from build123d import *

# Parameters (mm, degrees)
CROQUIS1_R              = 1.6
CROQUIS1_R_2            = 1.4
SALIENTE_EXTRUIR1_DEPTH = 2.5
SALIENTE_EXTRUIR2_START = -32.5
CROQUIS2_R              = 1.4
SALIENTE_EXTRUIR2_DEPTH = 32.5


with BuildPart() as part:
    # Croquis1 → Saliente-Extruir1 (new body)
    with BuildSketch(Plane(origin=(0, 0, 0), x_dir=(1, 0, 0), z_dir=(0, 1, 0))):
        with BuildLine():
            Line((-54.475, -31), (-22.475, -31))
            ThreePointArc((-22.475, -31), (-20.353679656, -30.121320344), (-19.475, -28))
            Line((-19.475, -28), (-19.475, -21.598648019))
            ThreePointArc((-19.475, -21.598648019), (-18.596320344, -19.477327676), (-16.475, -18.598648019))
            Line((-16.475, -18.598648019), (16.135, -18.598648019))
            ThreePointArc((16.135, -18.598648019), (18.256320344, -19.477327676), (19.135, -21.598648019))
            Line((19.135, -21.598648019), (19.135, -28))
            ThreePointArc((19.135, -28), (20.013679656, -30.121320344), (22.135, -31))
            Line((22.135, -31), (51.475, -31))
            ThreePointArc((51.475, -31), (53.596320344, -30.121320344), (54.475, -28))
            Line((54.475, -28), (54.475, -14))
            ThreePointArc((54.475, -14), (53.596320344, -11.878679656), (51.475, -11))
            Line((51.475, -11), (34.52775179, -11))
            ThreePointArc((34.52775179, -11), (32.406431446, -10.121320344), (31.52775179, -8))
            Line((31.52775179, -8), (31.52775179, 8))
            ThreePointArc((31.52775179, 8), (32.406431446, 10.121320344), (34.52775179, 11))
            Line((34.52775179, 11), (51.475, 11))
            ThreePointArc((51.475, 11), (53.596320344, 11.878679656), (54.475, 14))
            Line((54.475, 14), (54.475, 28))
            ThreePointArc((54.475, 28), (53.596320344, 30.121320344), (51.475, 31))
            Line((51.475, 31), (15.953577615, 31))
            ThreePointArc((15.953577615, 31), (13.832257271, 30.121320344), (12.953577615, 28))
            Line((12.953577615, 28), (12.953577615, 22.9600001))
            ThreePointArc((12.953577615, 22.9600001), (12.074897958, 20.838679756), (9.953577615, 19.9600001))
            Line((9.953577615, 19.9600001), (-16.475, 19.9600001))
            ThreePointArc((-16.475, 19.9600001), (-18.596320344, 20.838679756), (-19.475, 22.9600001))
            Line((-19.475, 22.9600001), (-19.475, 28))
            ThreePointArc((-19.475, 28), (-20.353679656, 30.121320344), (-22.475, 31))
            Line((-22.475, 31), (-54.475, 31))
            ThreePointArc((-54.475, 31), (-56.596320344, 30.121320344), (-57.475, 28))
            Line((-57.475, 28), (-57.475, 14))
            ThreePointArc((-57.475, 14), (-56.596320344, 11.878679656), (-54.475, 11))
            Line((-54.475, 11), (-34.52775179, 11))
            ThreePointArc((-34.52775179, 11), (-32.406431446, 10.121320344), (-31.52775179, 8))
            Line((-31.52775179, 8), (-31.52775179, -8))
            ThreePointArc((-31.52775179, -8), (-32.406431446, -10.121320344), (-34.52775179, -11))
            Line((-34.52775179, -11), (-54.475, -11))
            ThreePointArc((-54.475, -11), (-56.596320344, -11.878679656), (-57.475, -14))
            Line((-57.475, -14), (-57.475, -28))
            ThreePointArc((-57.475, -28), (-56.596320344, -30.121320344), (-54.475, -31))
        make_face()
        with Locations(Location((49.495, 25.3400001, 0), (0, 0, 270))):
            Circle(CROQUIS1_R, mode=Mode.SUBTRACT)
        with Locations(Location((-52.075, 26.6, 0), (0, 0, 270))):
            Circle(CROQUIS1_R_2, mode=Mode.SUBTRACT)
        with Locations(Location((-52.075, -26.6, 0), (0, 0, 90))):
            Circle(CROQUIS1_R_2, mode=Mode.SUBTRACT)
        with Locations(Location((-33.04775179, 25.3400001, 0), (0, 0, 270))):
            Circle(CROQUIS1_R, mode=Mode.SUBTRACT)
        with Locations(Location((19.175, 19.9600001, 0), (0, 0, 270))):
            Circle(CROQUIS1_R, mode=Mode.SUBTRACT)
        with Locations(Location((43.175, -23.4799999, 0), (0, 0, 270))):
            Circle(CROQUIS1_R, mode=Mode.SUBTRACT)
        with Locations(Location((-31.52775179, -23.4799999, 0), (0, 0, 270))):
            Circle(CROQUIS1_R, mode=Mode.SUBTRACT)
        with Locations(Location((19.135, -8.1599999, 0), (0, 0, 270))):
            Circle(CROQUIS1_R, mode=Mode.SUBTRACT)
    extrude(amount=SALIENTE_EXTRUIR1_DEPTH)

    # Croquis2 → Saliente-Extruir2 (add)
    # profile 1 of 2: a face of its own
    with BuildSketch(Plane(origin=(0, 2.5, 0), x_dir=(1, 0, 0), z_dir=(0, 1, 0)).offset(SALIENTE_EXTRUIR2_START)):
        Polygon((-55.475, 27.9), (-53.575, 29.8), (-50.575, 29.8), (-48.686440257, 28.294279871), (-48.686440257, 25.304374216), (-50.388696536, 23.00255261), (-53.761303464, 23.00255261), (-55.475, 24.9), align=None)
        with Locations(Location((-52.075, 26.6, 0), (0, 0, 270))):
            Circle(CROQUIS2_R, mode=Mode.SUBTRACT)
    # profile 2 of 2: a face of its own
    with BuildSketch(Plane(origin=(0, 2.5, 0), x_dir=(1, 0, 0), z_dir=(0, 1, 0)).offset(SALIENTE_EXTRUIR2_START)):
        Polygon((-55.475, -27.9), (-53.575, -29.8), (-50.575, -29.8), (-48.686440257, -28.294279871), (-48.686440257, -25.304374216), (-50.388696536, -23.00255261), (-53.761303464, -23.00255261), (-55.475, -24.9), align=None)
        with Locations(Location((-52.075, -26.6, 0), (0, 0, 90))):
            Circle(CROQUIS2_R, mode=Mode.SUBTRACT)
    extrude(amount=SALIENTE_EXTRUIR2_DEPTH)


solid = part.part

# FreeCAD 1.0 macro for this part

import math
import FreeCAD as App
import Part
import Sketcher

V = App.Vector
Q = App.Units.Quantity

doc = App.newDocument("Part")
body = doc.addObject("PartDesign::Body", "Body")

# Sketch on XZ plane
sketch1 = body.newObject("Sketcher::SketchObject", "Sketch")
sketch1.AttachmentSupport = (doc.getObject("XZ_Plane"), [""])
sketch1.MapMode = "FlatFace"
sketch1.addGeometry([
    Part.LineSegment(V(-54.475, 31, 0), V(-22.475, 31, 0)),  # 0
    Part.ArcOfCircle(Part.Circle(V(-22.475, 28, 0), V(0, 0, 1), 3), math.radians(0), math.radians(90)),  # 1
    Part.LineSegment(V(-19.475, 28, 0), V(-19.475, 21.598648, 0)),  # 2
    Part.ArcOfCircle(Part.Circle(V(-16.475, 21.598648, 0), V(0, 0, 1), 3), math.radians(180), math.radians(270)),  # 3
    Part.LineSegment(V(-16.475, 18.598648, 0), V(16.135, 18.598648, 0)),  # 4
    Part.ArcOfCircle(Part.Circle(V(16.135, 21.598648, 0), V(0, 0, 1), 3), math.radians(-90), math.radians(0)),  # 5
    Part.LineSegment(V(19.135, 21.598648, 0), V(19.135, 28, 0)),  # 6
    Part.ArcOfCircle(Part.Circle(V(22.135, 28, 0), V(0, 0, 1), 3), math.radians(90), math.radians(180)),  # 7
    Part.LineSegment(V(22.135, 31, 0), V(51.475, 31, 0)),  # 8
    Part.ArcOfCircle(Part.Circle(V(51.475, 28, 0), V(0, 0, 1), 3), math.radians(0), math.radians(90)),  # 9
    Part.LineSegment(V(54.475, 28, 0), V(54.475, 14, 0)),  # 10
    Part.ArcOfCircle(Part.Circle(V(51.475, 14, 0), V(0, 0, 1), 3), math.radians(-90), math.radians(0)),  # 11
    Part.LineSegment(V(51.475, 11, 0), V(34.527752, 11, 0)),  # 12
    Part.ArcOfCircle(Part.Circle(V(34.527752, 8, 0), V(0, 0, 1), 3), math.radians(90), math.radians(180)),  # 13
    Part.LineSegment(V(31.527752, 8, 0), V(31.527752, -8, 0)),  # 14
    Part.ArcOfCircle(Part.Circle(V(34.527752, -8, 0), V(0, 0, 1), 3), math.radians(180), math.radians(270)),  # 15
    Part.LineSegment(V(34.527752, -11, 0), V(51.475, -11, 0)),  # 16
    Part.ArcOfCircle(Part.Circle(V(51.475, -14, 0), V(0, 0, 1), 3), math.radians(0), math.radians(90)),  # 17
    Part.LineSegment(V(54.475, -14, 0), V(54.475, -28, 0)),  # 18
    Part.ArcOfCircle(Part.Circle(V(51.475, -28, 0), V(0, 0, 1), 3), math.radians(-90), math.radians(0)),  # 19
    Part.LineSegment(V(51.475, -31, 0), V(15.953578, -31, 0)),  # 20
    Part.ArcOfCircle(Part.Circle(V(15.953578, -28, 0), V(0, 0, 1), 3), math.radians(180), math.radians(270)),  # 21
    Part.LineSegment(V(12.953578, -28, 0), V(12.953578, -22.96, 0)),  # 22
    Part.ArcOfCircle(Part.Circle(V(9.953578, -22.96, 0), V(0, 0, 1), 3), math.radians(0), math.radians(90)),  # 23
    Part.LineSegment(V(9.953578, -19.96, 0), V(-16.475, -19.96, 0)),  # 24
    Part.ArcOfCircle(Part.Circle(V(-16.475, -22.96, 0), V(0, 0, 1), 3), math.radians(90), math.radians(180)),  # 25
    Part.LineSegment(V(-19.475, -22.96, 0), V(-19.475, -28, 0)),  # 26
    Part.ArcOfCircle(Part.Circle(V(-22.475, -28, 0), V(0, 0, 1), 3), math.radians(-90), math.radians(0)),  # 27
    Part.LineSegment(V(-22.475, -31, 0), V(-54.475, -31, 0)),  # 28
    Part.ArcOfCircle(Part.Circle(V(-54.475, -28, 0), V(0, 0, 1), 3), math.radians(180), math.radians(270)),  # 29
    Part.LineSegment(V(-57.475, -28, 0), V(-57.475, -14, 0)),  # 30
    Part.ArcOfCircle(Part.Circle(V(-54.475, -14, 0), V(0, 0, 1), 3), math.radians(90), math.radians(180)),  # 31
    Part.LineSegment(V(-54.475, -11, 0), V(-34.527752, -11, 0)),  # 32
    Part.ArcOfCircle(Part.Circle(V(-34.527752, -8, 0), V(0, 0, 1), 3), math.radians(-90), math.radians(0)),  # 33
    Part.LineSegment(V(-31.527752, -8, 0), V(-31.527752, 8, 0)),  # 34
    Part.ArcOfCircle(Part.Circle(V(-34.527752, 8, 0), V(0, 0, 1), 3), math.radians(0), math.radians(90)),  # 35
    Part.LineSegment(V(-34.527752, 11, 0), V(-54.475, 11, 0)),  # 36
    Part.ArcOfCircle(Part.Circle(V(-54.475, 14, 0), V(0, 0, 1), 3), math.radians(180), math.radians(270)),  # 37
    Part.LineSegment(V(-57.475, 14, 0), V(-57.475, 28, 0)),  # 38
    Part.ArcOfCircle(Part.Circle(V(-54.475, 28, 0), V(0, 0, 1), 3), math.radians(90), math.radians(180)),  # 39
    Part.Circle(V(-52.075, 26.6, 0), V(0, 0, 1), 1.4),  # 40
    Part.Circle(V(-31.527752, 23.48, 0), V(0, 0, 1), 1.6),  # 41
    Part.Circle(V(43.175, 23.48, 0), V(0, 0, 1), 1.6),  # 42
    Part.Circle(V(19.135, 8.16, 0), V(0, 0, 1), 1.6),  # 43
    Part.Circle(V(-52.075, -26.6, 0), V(0, 0, 1), 1.4),  # 44
    Part.Circle(V(-33.047752, -25.34, 0), V(0, 0, 1), 1.6),  # 45
    Part.Circle(V(19.175, -19.96, 0), V(0, 0, 1), 1.6),  # 46
    Part.Circle(V(49.495, -25.34, 0), V(0, 0, 1), 1.6),  # 47
], False)
sketch1.addConstraint([
    Sketcher.Constraint("Tangent", 0, 2, 1, 2),
    Sketcher.Constraint("Tangent", 1, 1, 2, 1),
    Sketcher.Constraint("Tangent", 2, 2, 3, 1),
    Sketcher.Constraint("Tangent", 3, 2, 4, 1),
    Sketcher.Constraint("Tangent", 4, 2, 5, 1),
    Sketcher.Constraint("Tangent", 5, 2, 6, 1),
    Sketcher.Constraint("Tangent", 6, 2, 7, 2),
    Sketcher.Constraint("Tangent", 7, 1, 8, 1),
    Sketcher.Constraint("Tangent", 8, 2, 9, 2),
    Sketcher.Constraint("Tangent", 9, 1, 10, 1),
    Sketcher.Constraint("Tangent", 10, 2, 11, 2),
    Sketcher.Constraint("Tangent", 11, 1, 12, 1),
    Sketcher.Constraint("Tangent", 12, 2, 13, 1),
    Sketcher.Constraint("Tangent", 13, 2, 14, 1),
    Sketcher.Constraint("Tangent", 14, 2, 15, 1),
    Sketcher.Constraint("Tangent", 15, 2, 16, 1),
    Sketcher.Constraint("Tangent", 16, 2, 17, 2),
    Sketcher.Constraint("Tangent", 17, 1, 18, 1),
    Sketcher.Constraint("Tangent", 18, 2, 19, 2),
    Sketcher.Constraint("Tangent", 19, 1, 20, 1),
    Sketcher.Constraint("Tangent", 20, 2, 21, 2),
    Sketcher.Constraint("Tangent", 21, 1, 22, 1),
    Sketcher.Constraint("Tangent", 22, 2, 23, 1),
    Sketcher.Constraint("Tangent", 23, 2, 24, 1),
    Sketcher.Constraint("Tangent", 24, 2, 25, 1),
    Sketcher.Constraint("Tangent", 25, 2, 26, 1),
    Sketcher.Constraint("Tangent", 26, 2, 27, 2),
    Sketcher.Constraint("Tangent", 27, 1, 28, 1),
    Sketcher.Constraint("Tangent", 28, 2, 29, 2),
    Sketcher.Constraint("Tangent", 29, 1, 30, 1),
    Sketcher.Constraint("Tangent", 30, 2, 31, 2),
    Sketcher.Constraint("Tangent", 31, 1, 32, 1),
    Sketcher.Constraint("Tangent", 32, 2, 33, 1),
    Sketcher.Constraint("Tangent", 33, 2, 34, 1),
    Sketcher.Constraint("Tangent", 34, 2, 35, 1),
    Sketcher.Constraint("Tangent", 35, 2, 36, 1),
    Sketcher.Constraint("Tangent", 36, 2, 37, 2),
    Sketcher.Constraint("Tangent", 37, 1, 38, 1),
    Sketcher.Constraint("Tangent", 38, 2, 39, 2),
    Sketcher.Constraint("Tangent", 39, 1, 0, 1),
    Sketcher.Constraint("Horizontal", 0),
    Sketcher.Constraint("Vertical", 2),
    Sketcher.Constraint("Horizontal", 4),
    Sketcher.Constraint("Vertical", 6),
    Sketcher.Constraint("Horizontal", 8),
    Sketcher.Constraint("Vertical", 10),
    Sketcher.Constraint("Horizontal", 12),
    Sketcher.Constraint("Vertical", 14),
    Sketcher.Constraint("Horizontal", 16),
    Sketcher.Constraint("Vertical", 18),
    Sketcher.Constraint("Horizontal", 20),
    Sketcher.Constraint("Vertical", 22),
    Sketcher.Constraint("Horizontal", 24),
    Sketcher.Constraint("Vertical", 26),
    Sketcher.Constraint("Horizontal", 28),
    Sketcher.Constraint("Vertical", 30),
    Sketcher.Constraint("Horizontal", 32),
    Sketcher.Constraint("Vertical", 34),
    Sketcher.Constraint("Horizontal", 36),
    Sketcher.Constraint("Vertical", 38),
    Sketcher.Constraint("Equal", 1, 3),
    Sketcher.Constraint("Equal", 3, 5),
    Sketcher.Constraint("Equal", 5, 7),
    Sketcher.Constraint("Equal", 7, 9),
    Sketcher.Constraint("Equal", 9, 11),
    Sketcher.Constraint("Equal", 11, 13),
    Sketcher.Constraint("Equal", 13, 15),
    Sketcher.Constraint("Equal", 15, 17),
    Sketcher.Constraint("Equal", 17, 19),
    Sketcher.Constraint("Equal", 19, 21),
    Sketcher.Constraint("Equal", 21, 23),
    Sketcher.Constraint("Equal", 23, 25),
    Sketcher.Constraint("Equal", 25, 27),
    Sketcher.Constraint("Equal", 27, 29),
    Sketcher.Constraint("Equal", 29, 31),
    Sketcher.Constraint("Equal", 31, 33),
    Sketcher.Constraint("Equal", 33, 35),
    Sketcher.Constraint("Equal", 35, 37),
    Sketcher.Constraint("Equal", 37, 39),
    Sketcher.Constraint("Equal", 41, 42),
    Sketcher.Constraint("Equal", 42, 43),
    Sketcher.Constraint("Equal", 40, 44),
    Sketcher.Constraint("Equal", 43, 45),
    Sketcher.Constraint("Equal", 45, 46),
    Sketcher.Constraint("Equal", 46, 47),
    Sketcher.Constraint("Symmetric", 13, 3, 33, 3, -1, 1),
    Sketcher.Constraint("Symmetric", 11, 3, 17, 3, -1),
    Sketcher.Constraint("Symmetric", 1, 3, 27, 3, -1),
    Sketcher.Constraint("Symmetric", 31, 3, 37, 3, -1),
    Sketcher.Constraint("Symmetric", 40, 3, 44, 3, -1),
    Sketcher.Constraint("Horizontal", 1, 3, 7, 3),
    Sketcher.Constraint("Horizontal", 21, 3, 27, 3),
    Sketcher.Constraint("Horizontal", 41, 3, 42, 3),
    Sketcher.Constraint("Horizontal", 45, 3, 47, 3),
    Sketcher.Constraint("Horizontal", 46, 3, 23, 2),
    Sketcher.Constraint("Vertical", 43, 3, 5, 2),
    Sketcher.Constraint("Vertical", 41, 3, 33, 2),
    Sketcher.Constraint("Radius", 1, Q("3 mm")),
    Sketcher.Constraint("Diameter", 40, Q("2.8 mm")),
    Sketcher.Constraint("Diameter", 41, Q("3.2 mm")),
    Sketcher.Constraint("DistanceX", 0, 1, 0, 2, Q("32 mm")),
    Sketcher.Constraint("DistanceY", 10, 2, 10, 1, Q("14 mm")),
    Sketcher.Constraint("DistanceY", 14, 2, 14, 1, Q("16 mm")),
    Sketcher.Constraint("DistanceX", 4, 1, 4, 2, Q("32.61 mm")),
    Sketcher.Constraint("DistanceX", 8, 1, 8, 2, Q("29.34 mm")),
    Sketcher.Constraint("DistanceY", 22, 1, 22, 2, Q("5.04 mm")),
    Sketcher.Constraint("DistanceY", -1, 1, 40, 3, Q("26.6 mm")),
    Sketcher.Constraint("DistanceY", -1, 1, 41, 3, Q("23.48 mm")),
    Sketcher.Constraint("DistanceY", -1, 1, 43, 3, Q("8.16 mm")),
    Sketcher.Constraint("DistanceY", 45, 3, -1, 1, Q("25.34 mm")),
    Sketcher.Constraint("DistanceX", 1, 3, -1, 1, Q("22.475 mm")),
    Sketcher.Constraint("DistanceX", 40, 3, -1, 1, Q("52.075 mm")),
    Sketcher.Constraint("DistanceX", -1, 1, 42, 3, Q("43.175 mm")),
    Sketcher.Constraint("DistanceX", -1, 1, 46, 3, Q("19.175 mm")),
    Sketcher.Constraint("DistanceX", -1, 1, 47, 3, Q("49.495 mm")),
    Sketcher.Constraint("DistanceX", 12, 2, 12, 1, Q("16.947248 mm")),
    Sketcher.Constraint("DistanceY", 2, 2, 2, 1, Q("6.401352 mm")),
    Sketcher.Constraint("DistanceX", 20, 2, 20, 1, Q("35.521422 mm")),
    Sketcher.Constraint("DistanceX", 45, 3, -1, 1, Q("33.047752 mm")),
])
pad1 = body.newObject("PartDesign::Pad", "Pad")
pad1.Profile = sketch1
pad1.Length = 2.5
pad1.Reversed = True

# Sketch on XZ plane
sketch2 = body.newObject("Sketcher::SketchObject", "Sketch001")
sketch2.AttachmentSupport = (doc.getObject("XZ_Plane"), [""])
sketch2.MapMode = "FlatFace"
sketch2.AttachmentOffset = App.Placement(V(0, 0, 30), App.Rotation())
sketch2.addGeometry([
    Part.LineSegment(V(-53.575, -29.8, 0), V(-55.475, -27.9, 0)),  # 0
    Part.LineSegment(V(-55.475, -27.9, 0), V(-55.475, -24.9, 0)),  # 1
    Part.LineSegment(V(-55.475, -24.9, 0), V(-53.761303, -23.002553, 0)),  # 2
    Part.LineSegment(V(-53.761303, -23.002553, 0), V(-50.388697, -23.002553, 0)),  # 3
    Part.LineSegment(V(-50.388697, -23.002553, 0), V(-48.68644, -25.304374, 0)),  # 4
    Part.LineSegment(V(-48.68644, -25.304374, 0), V(-48.68644, -28.29428, 0)),  # 5
    Part.LineSegment(V(-48.68644, -28.29428, 0), V(-50.575, -29.8, 0)),  # 6
    Part.LineSegment(V(-50.575, -29.8, 0), V(-53.575, -29.8, 0)),  # 7
    Part.Circle(V(-52.075, -26.6, 0), V(0, 0, 1), 1.4),  # 8
    Part.LineSegment(V(-55.475, 27.9, 0), V(-53.575, 29.8, 0)),  # 9
    Part.LineSegment(V(-53.575, 29.8, 0), V(-50.575, 29.8, 0)),  # 10
    Part.LineSegment(V(-50.575, 29.8, 0), V(-48.68644, 28.29428, 0)),  # 11
    Part.LineSegment(V(-48.68644, 28.29428, 0), V(-48.68644, 25.304374, 0)),  # 12
    Part.LineSegment(V(-48.68644, 25.304374, 0), V(-50.388697, 23.002553, 0)),  # 13
    Part.LineSegment(V(-50.388697, 23.002553, 0), V(-53.761303, 23.002553, 0)),  # 14
    Part.LineSegment(V(-53.761303, 23.002553, 0), V(-55.475, 24.9, 0)),  # 15
    Part.LineSegment(V(-55.475, 24.9, 0), V(-55.475, 27.9, 0)),  # 16
    Part.Circle(V(-52.075, 26.6, 0), V(0, 0, 1), 1.4),  # 17
], False)
sketch2.addConstraint([
    Sketcher.Constraint("Coincident", 0, 2, 1, 1),
    Sketcher.Constraint("Coincident", 1, 2, 2, 1),
    Sketcher.Constraint("Coincident", 2, 2, 3, 1),
    Sketcher.Constraint("Coincident", 3, 2, 4, 1),
    Sketcher.Constraint("Coincident", 4, 2, 5, 1),
    Sketcher.Constraint("Coincident", 5, 2, 6, 1),
    Sketcher.Constraint("Coincident", 6, 2, 7, 1),
    Sketcher.Constraint("Coincident", 7, 2, 0, 1),
    Sketcher.Constraint("Coincident", 9, 2, 10, 1),
    Sketcher.Constraint("Coincident", 10, 2, 11, 1),
    Sketcher.Constraint("Coincident", 11, 2, 12, 1),
    Sketcher.Constraint("Coincident", 12, 2, 13, 1),
    Sketcher.Constraint("Coincident", 13, 2, 14, 1),
    Sketcher.Constraint("Coincident", 14, 2, 15, 1),
    Sketcher.Constraint("Coincident", 15, 2, 16, 1),
    Sketcher.Constraint("Coincident", 16, 2, 9, 1),
    Sketcher.Constraint("Vertical", 1),
    Sketcher.Constraint("Horizontal", 3),
    Sketcher.Constraint("Vertical", 5),
    Sketcher.Constraint("Horizontal", 7),
    Sketcher.Constraint("Horizontal", 10),
    Sketcher.Constraint("Vertical", 12),
    Sketcher.Constraint("Horizontal", 14),
    Sketcher.Constraint("Vertical", 16),
    Sketcher.Constraint("Equal", 8, 17),
    Sketcher.Constraint("Symmetric", 8, 3, 17, 3, -1),
    Sketcher.Constraint("Symmetric", 7, 2, 9, 2, -1),
    Sketcher.Constraint("Symmetric", 5, 2, 11, 2, -1),
    Sketcher.Constraint("Symmetric", 3, 2, 13, 2, -1),
    Sketcher.Constraint("Symmetric", 1, 2, 15, 2, -1),
    Sketcher.Constraint("Perpendicular", 0, 9),
    Sketcher.Constraint("Vertical", 6, 2, 10, 2),
    Sketcher.Constraint("Vertical", 2, 2, 14, 2),
    Sketcher.Constraint("Equal", 10, 1),
    Sketcher.Constraint("Equal", 5, 12),
    Sketcher.Constraint("Equal", 1, 16),
    Sketcher.Constraint("Diameter", 8, Q("2.8 mm")),
    Sketcher.Constraint("DistanceX", 7, 2, 7, 1, Q("3 mm")),
    Sketcher.Constraint("DistanceY", 8, 3, -1, 1, Q("26.6 mm")),
    Sketcher.Constraint("DistanceY", 0, 2, -1, 1, Q("27.9 mm")),
    Sketcher.Constraint("DistanceY", 6, 2, -1, 1, Q("29.8 mm")),
    Sketcher.Constraint("DistanceX", 0, 2, 8, 3, Q("3.4 mm")),
    Sketcher.Constraint("DistanceX", 8, 3, -1, 1, Q("52.075 mm")),
    Sketcher.Constraint("DistanceX", 3, 1, 3, 2, Q("3.372607 mm")),
    Sketcher.Constraint("DistanceY", 5, 2, 5, 1, Q("2.989906 mm")),
    Sketcher.Constraint("DistanceX", 4, 2, -1, 1, Q("48.68644 mm")),
    Sketcher.Constraint("DistanceY", 5, 2, -1, 1, Q("28.29428 mm")),
    Sketcher.Constraint("DistanceY", 4, 2, 3, 2, Q("2.301822 mm")),
    Sketcher.Constraint("Distance", 2, Q("2.556768 mm")),
])
pad2 = body.newObject("PartDesign::Pad", "Pad001")
pad2.Profile = sketch2
pad2.Length = 32.5
pad2.Reversed = True

doc.recompute()
